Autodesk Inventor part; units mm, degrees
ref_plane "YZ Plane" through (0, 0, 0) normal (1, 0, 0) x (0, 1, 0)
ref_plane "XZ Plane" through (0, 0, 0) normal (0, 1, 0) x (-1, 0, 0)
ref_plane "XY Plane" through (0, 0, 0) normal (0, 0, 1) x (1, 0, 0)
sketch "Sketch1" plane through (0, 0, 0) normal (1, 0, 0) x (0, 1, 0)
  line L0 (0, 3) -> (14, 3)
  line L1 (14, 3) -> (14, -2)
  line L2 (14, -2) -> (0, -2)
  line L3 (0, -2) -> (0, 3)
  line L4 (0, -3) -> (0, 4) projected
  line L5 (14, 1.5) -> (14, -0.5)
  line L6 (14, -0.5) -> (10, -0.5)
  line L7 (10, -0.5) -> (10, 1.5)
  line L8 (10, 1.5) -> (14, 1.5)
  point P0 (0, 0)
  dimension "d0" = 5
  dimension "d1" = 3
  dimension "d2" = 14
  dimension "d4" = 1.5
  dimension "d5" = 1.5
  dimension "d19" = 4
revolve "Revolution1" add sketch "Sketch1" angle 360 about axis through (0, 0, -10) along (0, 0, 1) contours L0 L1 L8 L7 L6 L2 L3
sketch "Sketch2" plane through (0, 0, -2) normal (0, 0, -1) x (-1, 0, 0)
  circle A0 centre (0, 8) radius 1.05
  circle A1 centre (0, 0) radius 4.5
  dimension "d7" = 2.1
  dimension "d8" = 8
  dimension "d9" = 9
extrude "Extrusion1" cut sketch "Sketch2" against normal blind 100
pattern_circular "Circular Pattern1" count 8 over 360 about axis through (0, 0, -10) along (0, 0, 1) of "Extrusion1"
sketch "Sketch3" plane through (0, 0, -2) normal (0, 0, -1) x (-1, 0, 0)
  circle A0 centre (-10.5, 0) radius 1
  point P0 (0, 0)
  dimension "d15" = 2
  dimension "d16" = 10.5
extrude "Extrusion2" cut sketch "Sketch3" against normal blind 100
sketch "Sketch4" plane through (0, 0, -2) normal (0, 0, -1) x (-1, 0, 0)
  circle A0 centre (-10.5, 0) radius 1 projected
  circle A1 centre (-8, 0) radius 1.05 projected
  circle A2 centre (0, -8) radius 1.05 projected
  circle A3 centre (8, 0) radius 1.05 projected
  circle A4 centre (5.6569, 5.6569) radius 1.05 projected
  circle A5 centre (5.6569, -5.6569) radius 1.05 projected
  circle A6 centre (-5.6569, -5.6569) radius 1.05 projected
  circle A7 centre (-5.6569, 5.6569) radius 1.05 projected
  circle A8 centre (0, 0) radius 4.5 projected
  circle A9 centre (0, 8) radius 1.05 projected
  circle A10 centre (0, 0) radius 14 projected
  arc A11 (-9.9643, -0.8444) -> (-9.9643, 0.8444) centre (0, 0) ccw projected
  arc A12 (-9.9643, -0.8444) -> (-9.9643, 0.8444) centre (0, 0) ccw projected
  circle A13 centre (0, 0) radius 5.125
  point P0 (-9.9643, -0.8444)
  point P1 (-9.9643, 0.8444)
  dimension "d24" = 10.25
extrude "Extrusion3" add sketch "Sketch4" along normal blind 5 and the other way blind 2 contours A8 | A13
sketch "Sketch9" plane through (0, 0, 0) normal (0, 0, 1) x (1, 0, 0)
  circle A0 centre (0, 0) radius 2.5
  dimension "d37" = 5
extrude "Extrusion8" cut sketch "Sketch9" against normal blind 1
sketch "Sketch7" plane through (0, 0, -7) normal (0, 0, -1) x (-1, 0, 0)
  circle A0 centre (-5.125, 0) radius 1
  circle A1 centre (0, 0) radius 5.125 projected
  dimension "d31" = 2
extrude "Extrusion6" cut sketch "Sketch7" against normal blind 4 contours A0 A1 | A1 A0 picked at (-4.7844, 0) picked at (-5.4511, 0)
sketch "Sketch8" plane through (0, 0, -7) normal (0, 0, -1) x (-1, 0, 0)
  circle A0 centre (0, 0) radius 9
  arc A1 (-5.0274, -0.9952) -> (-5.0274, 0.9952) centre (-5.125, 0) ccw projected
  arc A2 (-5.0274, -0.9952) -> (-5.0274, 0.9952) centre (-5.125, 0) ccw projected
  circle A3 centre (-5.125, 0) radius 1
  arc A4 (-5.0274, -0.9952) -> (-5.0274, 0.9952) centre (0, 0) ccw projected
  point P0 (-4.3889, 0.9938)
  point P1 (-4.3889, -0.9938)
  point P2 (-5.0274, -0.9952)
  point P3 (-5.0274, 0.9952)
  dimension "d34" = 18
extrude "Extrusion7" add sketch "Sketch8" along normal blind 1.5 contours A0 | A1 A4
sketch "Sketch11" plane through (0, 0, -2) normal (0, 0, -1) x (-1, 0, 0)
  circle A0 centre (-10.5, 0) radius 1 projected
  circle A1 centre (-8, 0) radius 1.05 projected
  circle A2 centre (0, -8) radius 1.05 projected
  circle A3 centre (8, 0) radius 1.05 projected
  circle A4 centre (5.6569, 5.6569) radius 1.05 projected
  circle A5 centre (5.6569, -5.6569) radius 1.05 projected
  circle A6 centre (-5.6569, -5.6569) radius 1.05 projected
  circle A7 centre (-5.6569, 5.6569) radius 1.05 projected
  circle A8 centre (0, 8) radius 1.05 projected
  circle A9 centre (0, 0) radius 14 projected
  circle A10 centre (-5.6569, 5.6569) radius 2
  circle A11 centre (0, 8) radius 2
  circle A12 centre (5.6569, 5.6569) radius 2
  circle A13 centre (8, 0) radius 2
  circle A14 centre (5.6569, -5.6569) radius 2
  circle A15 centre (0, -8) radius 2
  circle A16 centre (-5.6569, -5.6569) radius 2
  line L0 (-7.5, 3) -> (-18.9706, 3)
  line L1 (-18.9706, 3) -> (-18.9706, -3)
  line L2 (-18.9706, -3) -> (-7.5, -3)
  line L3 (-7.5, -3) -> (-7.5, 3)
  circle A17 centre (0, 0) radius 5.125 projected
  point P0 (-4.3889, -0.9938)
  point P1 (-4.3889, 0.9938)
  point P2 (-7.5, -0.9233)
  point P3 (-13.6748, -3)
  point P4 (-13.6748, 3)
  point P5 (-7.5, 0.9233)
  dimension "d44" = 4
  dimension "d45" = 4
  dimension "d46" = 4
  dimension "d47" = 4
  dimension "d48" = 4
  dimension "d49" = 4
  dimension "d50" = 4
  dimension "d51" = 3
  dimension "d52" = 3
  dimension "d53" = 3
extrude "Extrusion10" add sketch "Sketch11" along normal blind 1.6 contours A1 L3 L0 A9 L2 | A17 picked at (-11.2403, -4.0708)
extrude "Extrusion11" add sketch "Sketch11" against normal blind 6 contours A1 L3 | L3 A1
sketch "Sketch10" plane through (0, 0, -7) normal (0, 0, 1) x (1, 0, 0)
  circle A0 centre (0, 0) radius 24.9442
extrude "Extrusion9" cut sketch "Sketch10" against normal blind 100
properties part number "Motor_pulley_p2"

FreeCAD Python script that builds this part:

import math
import FreeCAD as App
import Part
import Sketcher

doc = App.newDocument("Part")
body = doc.addObject("PartDesign::Body", "Body")

sketch1 = doc.addObject("Sketcher::SketchObject", "Sketch")
body.addObject(sketch1)
sketch1.AttachmentSupport = (doc.YZ_Plane, [""])
sketch1.MapMode = "FlatFace"
sketch1.addGeometry([
    Part.LineSegment(App.Vector(14, 3, 0), App.Vector(0, 3, 0)),
    Part.LineSegment(App.Vector(0, 3, 0), App.Vector(0, -2, 0)),
    Part.LineSegment(App.Vector(0, -2, 0), App.Vector(14, -2, 0)),
    Part.LineSegment(App.Vector(14, -2, 0), App.Vector(14, -0.5, 0)),
    Part.LineSegment(App.Vector(14, -0.5, 0), App.Vector(10, -0.5, 0)),
    Part.LineSegment(App.Vector(10, -0.5, 0), App.Vector(10, 1.5, 0)),
    Part.LineSegment(App.Vector(10, 1.5, 0), App.Vector(14, 1.5, 0)),
    Part.LineSegment(App.Vector(14, 1.5, 0), App.Vector(14, 3, 0)),
], False)
sketch1.addConstraint([
    Sketcher.Constraint("Coincident", 0, 2, 1, 1),
    Sketcher.Constraint("Coincident", 1, 2, 2, 1),
    Sketcher.Constraint("Coincident", 2, 2, 3, 1),
    Sketcher.Constraint("Coincident", 3, 2, 4, 1),
    Sketcher.Constraint("Coincident", 4, 2, 5, 1),
    Sketcher.Constraint("Coincident", 5, 2, 6, 1),
    Sketcher.Constraint("Coincident", 6, 2, 7, 1),
    Sketcher.Constraint("Coincident", 7, 2, 0, 1),
    Sketcher.Constraint("Horizontal", 0),
    Sketcher.Constraint("Vertical", 1),
    Sketcher.Constraint("Horizontal", 2),
    Sketcher.Constraint("Vertical", 3),
    Sketcher.Constraint("Horizontal", 4),
    Sketcher.Constraint("Vertical", 5),
    Sketcher.Constraint("Horizontal", 6),
    Sketcher.Constraint("Vertical", 7),
    Sketcher.Constraint("PointOnObject", 0, 2, -2),
    Sketcher.Constraint("Vertical", 3, 2, 6, 2),
    Sketcher.Constraint("Equal", 3, 7),
    Sketcher.Constraint("DistanceX", 0, 2, 0, 1, 14.0),
    Sketcher.Constraint("DistanceX", 4, 2, 4, 1, 4.0),
    Sketcher.Constraint("DistanceY", 1, 2, 1, 1, 5.0),
    Sketcher.Constraint("DistanceY", 3, 1, 3, 2, 1.5),
    Sketcher.Constraint("DistanceY", -1, 1, 0, 2, 3.0),
])
revolution = doc.addObject("PartDesign::Revolution", "Revolution")
body.addObject(revolution)
revolution.Profile = sketch1
revolution.ReferenceAxis = (sketch1, ["V_Axis"])
revolution.Angle = 360

sketch2 = doc.addObject("Sketcher::SketchObject", "Sketch001")
body.addObject(sketch2)
sketch2.AttachmentSupport = (doc.XY_Plane, [""])
sketch2.MapMode = "FlatFace"
sketch2.AttachmentOffset = App.Placement(App.Vector(0, 0, -2), App.Rotation())
sketch2.addGeometry([
    Part.Circle(App.Vector(0, 8, 0), App.Vector(0, 0, 1), 1.05),
    Part.Circle(App.Vector(0, 0, 0), App.Vector(0, 0, 1), 4.5),
], False)
sketch2.addConstraint([
    Sketcher.Constraint("Coincident", 1, 3, -1, 1),
    Sketcher.Constraint("PointOnObject", 0, 3, -2),
    Sketcher.Constraint("Diameter", 1, 9.0),
    Sketcher.Constraint("Diameter", 0, 2.1),
    Sketcher.Constraint("DistanceY", -1, 1, 0, 3, 8.0),
])
pocket1 = doc.addObject("PartDesign::Pocket", "Pocket")
body.addObject(pocket1)
pocket1.Profile = sketch2
pocket1.Length = 100
pocket1.Reversed = True
doc.recompute()

polarpattern = doc.addObject("PartDesign::PolarPattern", "PolarPattern")
body.addObject(polarpattern)
polarpattern.Originals = [pocket1]
polarpattern.Axis = (doc.Z_Axis, [""])
polarpattern.Angle = 360
polarpattern.Occurrences = 8
body.Tip = polarpattern

sketch3 = doc.addObject("Sketcher::SketchObject", "Sketch002")
body.addObject(sketch3)
sketch3.AttachmentSupport = (doc.XY_Plane, [""])
sketch3.MapMode = "FlatFace"
sketch3.AttachmentOffset = App.Placement(App.Vector(0, 0, -2), App.Rotation())
sketch3.addGeometry(Part.Circle(App.Vector(10.5, 0, 0), App.Vector(0, 0, 1), 1), False)
sketch3.addConstraint([
    Sketcher.Constraint("PointOnObject", 0, 3, -1),
    Sketcher.Constraint("Diameter", 0, 2.0),
    Sketcher.Constraint("DistanceX", -1, 1, 0, 3, 10.5),
])
pocket2 = doc.addObject("PartDesign::Pocket", "Pocket001")
body.addObject(pocket2)
pocket2.Profile = sketch3
pocket2.Length = 100
pocket2.Reversed = True

sketch4 = doc.addObject("Sketcher::SketchObject", "Sketch003")
body.addObject(sketch4)
sketch4.AttachmentSupport = (doc.XY_Plane, [""])
sketch4.MapMode = "FlatFace"
sketch4.AttachmentOffset = App.Placement(App.Vector(0, 0, -2), App.Rotation())
sketch4.addGeometry(Part.Circle(App.Vector(0, 0, 0), App.Vector(0, 0, 1), 5.125), False)
sketch4.addConstraint([
    Sketcher.Constraint("Coincident", 0, 3, -1, 1),
    Sketcher.Constraint("Diameter", 0, 10.25),
])
pad1 = doc.addObject("PartDesign::Pad", "Pad")
body.addObject(pad1)
pad1.Profile = sketch4
pad1.Type = "TwoLengths"
pad1.Length = 5
pad1.Length2 = 2
pad1.Reversed = True

sketch5 = doc.addObject("Sketcher::SketchObject", "Sketch004")
body.addObject(sketch5)
sketch5.AttachmentSupport = (doc.XY_Plane, [""])
sketch5.MapMode = "FlatFace"
sketch5.addGeometry(Part.Circle(App.Vector(0, 0, 0), App.Vector(0, 0, 1), 2.5), False)
sketch5.addConstraint([
    Sketcher.Constraint("Coincident", 0, 3, -1, 1),
    Sketcher.Constraint("Diameter", 0, 5.0),
])
pocket3 = doc.addObject("PartDesign::Pocket", "Pocket002")
body.addObject(pocket3)
pocket3.Profile = sketch5
pocket3.Length = 1

sketch6 = doc.addObject("Sketcher::SketchObject", "Sketch005")
body.addObject(sketch6)
sketch6.AttachmentSupport = (doc.XY_Plane, [""])
sketch6.MapMode = "FlatFace"
sketch6.AttachmentOffset = App.Placement(App.Vector(0, 0, -7), App.Rotation())
sketch6.addGeometry(Part.Circle(App.Vector(5.125, 0, 0), App.Vector(0, 0, 1), 1), False)
sketch6.addConstraint([
    Sketcher.Constraint("PointOnObject", 0, 3, -1),
    Sketcher.Constraint("Diameter", 0, 2.0),
    Sketcher.Constraint("DistanceX", -1, 1, 0, 3, 5.125),
])
pocket4 = doc.addObject("PartDesign::Pocket", "Pocket003")
body.addObject(pocket4)
pocket4.Profile = sketch6
pocket4.Length = 4
pocket4.Reversed = True

sketch7 = doc.addObject("Sketcher::SketchObject", "Sketch006")
body.addObject(sketch7)
sketch7.AttachmentSupport = (doc.XY_Plane, [""])
sketch7.MapMode = "FlatFace"
sketch7.AttachmentOffset = App.Placement(App.Vector(0, 0, -7), App.Rotation())
sketch7.addGeometry([
    Part.Circle(App.Vector(0, 0, 0), App.Vector(0, 0, 1), 9),
    Part.Circle(App.Vector(5.125, 0, 0), App.Vector(0, 0, 1), 0.999974),
], False)
sketch7.addConstraint([
    Sketcher.Constraint("Coincident", 0, 3, -1, 1),
    Sketcher.Constraint("PointOnObject", 1, 3, -1),
    Sketcher.Constraint("Diameter", 0, 18.0),
    Sketcher.Constraint("Diameter", 1, 2.0),
    Sketcher.Constraint("DistanceX", -1, 1, 1, 3, 5.125),
])
pad2 = doc.addObject("PartDesign::Pad", "Pad001")
body.addObject(pad2)
pad2.Profile = sketch7
pad2.Length = 1.5
pad2.Reversed = True

sketch8 = doc.addObject("Sketcher::SketchObject", "Sketch007")
body.addObject(sketch8)
sketch8.AttachmentSupport = (doc.XY_Plane, [""])
sketch8.MapMode = "FlatFace"
sketch8.AttachmentOffset = App.Placement(App.Vector(0, 0, -2), App.Rotation())
sketch8.addGeometry([
    Part.ArcOfCircle(Part.Circle(App.Vector(8, 0, 0), App.Vector(0, 0, 1), 1.05), math.radians(118.43689), math.radians(241.56311)),
    Part.LineSegment(App.Vector(7.5, -0.923309, 0), App.Vector(7.5, -3, 0)),
    Part.LineSegment(App.Vector(7.5, -3, 0), App.Vector(13.674794, -3, 0)),
    Part.ArcOfCircle(Part.Circle(App.Vector(0, 0, 0), App.Vector(0, 0, 1), 14), math.radians(12.373625), math.radians(347.626375)),
    Part.LineSegment(App.Vector(13.674794, 3, 0), App.Vector(7.5, 3, 0)),
    Part.LineSegment(App.Vector(7.5, 3, 0), App.Vector(7.5, 0.923309, 0)),
    Part.Circle(App.Vector(5.6569, -5.6569, 0), App.Vector(0, 0, 1), 2),
    Part.Circle(App.Vector(0, -8, 0), App.Vector(0, 0, 1), 2),
    Part.Circle(App.Vector(-5.6569, -5.6569, 0), App.Vector(0, 0, 1), 2),
    Part.Circle(App.Vector(5.6569, 5.6569, 0), App.Vector(0, 0, 1), 2),
    Part.Circle(App.Vector(-5.6569, 5.6569, 0), App.Vector(0, 0, 1), 2),
    Part.Circle(App.Vector(-8, 0, 0), App.Vector(0, 0, 1), 2),
    Part.Circle(App.Vector(0, 8, 0), App.Vector(0, 0, 1), 2),
], False)
sketch8.addConstraint([
    Sketcher.Constraint("Coincident", 0, 2, 1, 1),
    Sketcher.Constraint("Coincident", 1, 2, 2, 1),
    Sketcher.Constraint("Coincident", 2, 2, 3, 2),
    Sketcher.Constraint("Coincident", 3, 1, 4, 1),
    Sketcher.Constraint("Coincident", 4, 2, 5, 1),
    Sketcher.Constraint("Coincident", 5, 2, 0, 1),
    Sketcher.Constraint("Vertical", 1),
    Sketcher.Constraint("Horizontal", 2),
    Sketcher.Constraint("Horizontal", 4),
    Sketcher.Constraint("Vertical", 5),
    Sketcher.Constraint("Coincident", 3, 3, -1, 1),
    Sketcher.Constraint("Equal", 6, 7),
    Sketcher.Constraint("Equal", 7, 8),
    Sketcher.Constraint("Equal", 8, 9),
    Sketcher.Constraint("Equal", 9, 10),
    Sketcher.Constraint("Equal", 10, 11),
    Sketcher.Constraint("Equal", 11, 12),
    Sketcher.Constraint("Symmetric", 8, 3, 9, 3, -1, 1),
    Sketcher.Constraint("Symmetric", 6, 3, 10, 3, -1, 1),
    Sketcher.Constraint("Symmetric", 0, 3, 11, 3, -1, 1),
    Sketcher.Constraint("Symmetric", 7, 3, 12, 3, -1, 1),
    Sketcher.Constraint("Symmetric", 6, 3, 8, 3, -2),
    Sketcher.Constraint("Symmetric", 1, 2, 4, 2, -1),
    Sketcher.Constraint("PointOnObject", 0, 3, -1),
    Sketcher.Constraint("PointOnObject", 7, 3, -2),
    Sketcher.Constraint("Diameter", 6, 4.0),
    Sketcher.Constraint("DistanceY", 1, 2, -1, 1, 3.0),
    Sketcher.Constraint("Radius", 3, 14.0),
    Sketcher.Constraint("Radius", 0, 1.05),
    Sketcher.Constraint("DistanceX", -1, 1, 0, 3, 8.0),
    Sketcher.Constraint("DistanceY", 7, 3, -1, 1, 8.0),
    Sketcher.Constraint("DistanceX", -1, 1, 0, 2, 7.5),
    Sketcher.Constraint("DistanceX", -1, 1, 6, 3, 5.657),
    Sketcher.Constraint("DistanceY", 6, 3, -1, 1, 5.657),
])
pad3 = doc.addObject("PartDesign::Pad", "Pad002")
body.addObject(pad3)
pad3.Profile = sketch8
pad3.Length = 1.6
pad3.Reversed = True

sketch9 = doc.addObject("Sketcher::SketchObject", "Sketch008")
body.addObject(sketch9)
sketch9.AttachmentSupport = (doc.XY_Plane, [""])
sketch9.MapMode = "FlatFace"
sketch9.AttachmentOffset = App.Placement(App.Vector(0, 0, -2), App.Rotation())
sketch9.addGeometry(Part.Circle(App.Vector(8, 0, 0), App.Vector(0, 0, 1), 1.05), False)
sketch9.addConstraint([
    Sketcher.Constraint("PointOnObject", 0, 3, -1),
    Sketcher.Constraint("Diameter", 0, 2.1),
    Sketcher.Constraint("DistanceX", -1, 1, 0, 3, 8.0),
])
pad4 = doc.addObject("PartDesign::Pad", "Pad003")
body.addObject(pad4)
pad4.Profile = sketch9
pad4.Length = 6

sketch10 = doc.addObject("Sketcher::SketchObject", "Sketch009")
body.addObject(sketch10)
sketch10.AttachmentSupport = (doc.XY_Plane, [""])
sketch10.MapMode = "FlatFace"
sketch10.AttachmentOffset = App.Placement(App.Vector(0, 0, -7), App.Rotation())
sketch10.addGeometry(Part.Circle(App.Vector(0, 0, 0), App.Vector(0, 0, 1), 24.9442), False)
sketch10.addConstraint([
    Sketcher.Constraint("Coincident", 0, 3, -1, 1),
    Sketcher.Constraint("Diameter", 0, 49.8884),
])
pocket5 = doc.addObject("PartDesign::Pocket", "Pocket004")
body.addObject(pocket5)
pocket5.Profile = sketch10
pocket5.Length = 100

doc.recompute()
